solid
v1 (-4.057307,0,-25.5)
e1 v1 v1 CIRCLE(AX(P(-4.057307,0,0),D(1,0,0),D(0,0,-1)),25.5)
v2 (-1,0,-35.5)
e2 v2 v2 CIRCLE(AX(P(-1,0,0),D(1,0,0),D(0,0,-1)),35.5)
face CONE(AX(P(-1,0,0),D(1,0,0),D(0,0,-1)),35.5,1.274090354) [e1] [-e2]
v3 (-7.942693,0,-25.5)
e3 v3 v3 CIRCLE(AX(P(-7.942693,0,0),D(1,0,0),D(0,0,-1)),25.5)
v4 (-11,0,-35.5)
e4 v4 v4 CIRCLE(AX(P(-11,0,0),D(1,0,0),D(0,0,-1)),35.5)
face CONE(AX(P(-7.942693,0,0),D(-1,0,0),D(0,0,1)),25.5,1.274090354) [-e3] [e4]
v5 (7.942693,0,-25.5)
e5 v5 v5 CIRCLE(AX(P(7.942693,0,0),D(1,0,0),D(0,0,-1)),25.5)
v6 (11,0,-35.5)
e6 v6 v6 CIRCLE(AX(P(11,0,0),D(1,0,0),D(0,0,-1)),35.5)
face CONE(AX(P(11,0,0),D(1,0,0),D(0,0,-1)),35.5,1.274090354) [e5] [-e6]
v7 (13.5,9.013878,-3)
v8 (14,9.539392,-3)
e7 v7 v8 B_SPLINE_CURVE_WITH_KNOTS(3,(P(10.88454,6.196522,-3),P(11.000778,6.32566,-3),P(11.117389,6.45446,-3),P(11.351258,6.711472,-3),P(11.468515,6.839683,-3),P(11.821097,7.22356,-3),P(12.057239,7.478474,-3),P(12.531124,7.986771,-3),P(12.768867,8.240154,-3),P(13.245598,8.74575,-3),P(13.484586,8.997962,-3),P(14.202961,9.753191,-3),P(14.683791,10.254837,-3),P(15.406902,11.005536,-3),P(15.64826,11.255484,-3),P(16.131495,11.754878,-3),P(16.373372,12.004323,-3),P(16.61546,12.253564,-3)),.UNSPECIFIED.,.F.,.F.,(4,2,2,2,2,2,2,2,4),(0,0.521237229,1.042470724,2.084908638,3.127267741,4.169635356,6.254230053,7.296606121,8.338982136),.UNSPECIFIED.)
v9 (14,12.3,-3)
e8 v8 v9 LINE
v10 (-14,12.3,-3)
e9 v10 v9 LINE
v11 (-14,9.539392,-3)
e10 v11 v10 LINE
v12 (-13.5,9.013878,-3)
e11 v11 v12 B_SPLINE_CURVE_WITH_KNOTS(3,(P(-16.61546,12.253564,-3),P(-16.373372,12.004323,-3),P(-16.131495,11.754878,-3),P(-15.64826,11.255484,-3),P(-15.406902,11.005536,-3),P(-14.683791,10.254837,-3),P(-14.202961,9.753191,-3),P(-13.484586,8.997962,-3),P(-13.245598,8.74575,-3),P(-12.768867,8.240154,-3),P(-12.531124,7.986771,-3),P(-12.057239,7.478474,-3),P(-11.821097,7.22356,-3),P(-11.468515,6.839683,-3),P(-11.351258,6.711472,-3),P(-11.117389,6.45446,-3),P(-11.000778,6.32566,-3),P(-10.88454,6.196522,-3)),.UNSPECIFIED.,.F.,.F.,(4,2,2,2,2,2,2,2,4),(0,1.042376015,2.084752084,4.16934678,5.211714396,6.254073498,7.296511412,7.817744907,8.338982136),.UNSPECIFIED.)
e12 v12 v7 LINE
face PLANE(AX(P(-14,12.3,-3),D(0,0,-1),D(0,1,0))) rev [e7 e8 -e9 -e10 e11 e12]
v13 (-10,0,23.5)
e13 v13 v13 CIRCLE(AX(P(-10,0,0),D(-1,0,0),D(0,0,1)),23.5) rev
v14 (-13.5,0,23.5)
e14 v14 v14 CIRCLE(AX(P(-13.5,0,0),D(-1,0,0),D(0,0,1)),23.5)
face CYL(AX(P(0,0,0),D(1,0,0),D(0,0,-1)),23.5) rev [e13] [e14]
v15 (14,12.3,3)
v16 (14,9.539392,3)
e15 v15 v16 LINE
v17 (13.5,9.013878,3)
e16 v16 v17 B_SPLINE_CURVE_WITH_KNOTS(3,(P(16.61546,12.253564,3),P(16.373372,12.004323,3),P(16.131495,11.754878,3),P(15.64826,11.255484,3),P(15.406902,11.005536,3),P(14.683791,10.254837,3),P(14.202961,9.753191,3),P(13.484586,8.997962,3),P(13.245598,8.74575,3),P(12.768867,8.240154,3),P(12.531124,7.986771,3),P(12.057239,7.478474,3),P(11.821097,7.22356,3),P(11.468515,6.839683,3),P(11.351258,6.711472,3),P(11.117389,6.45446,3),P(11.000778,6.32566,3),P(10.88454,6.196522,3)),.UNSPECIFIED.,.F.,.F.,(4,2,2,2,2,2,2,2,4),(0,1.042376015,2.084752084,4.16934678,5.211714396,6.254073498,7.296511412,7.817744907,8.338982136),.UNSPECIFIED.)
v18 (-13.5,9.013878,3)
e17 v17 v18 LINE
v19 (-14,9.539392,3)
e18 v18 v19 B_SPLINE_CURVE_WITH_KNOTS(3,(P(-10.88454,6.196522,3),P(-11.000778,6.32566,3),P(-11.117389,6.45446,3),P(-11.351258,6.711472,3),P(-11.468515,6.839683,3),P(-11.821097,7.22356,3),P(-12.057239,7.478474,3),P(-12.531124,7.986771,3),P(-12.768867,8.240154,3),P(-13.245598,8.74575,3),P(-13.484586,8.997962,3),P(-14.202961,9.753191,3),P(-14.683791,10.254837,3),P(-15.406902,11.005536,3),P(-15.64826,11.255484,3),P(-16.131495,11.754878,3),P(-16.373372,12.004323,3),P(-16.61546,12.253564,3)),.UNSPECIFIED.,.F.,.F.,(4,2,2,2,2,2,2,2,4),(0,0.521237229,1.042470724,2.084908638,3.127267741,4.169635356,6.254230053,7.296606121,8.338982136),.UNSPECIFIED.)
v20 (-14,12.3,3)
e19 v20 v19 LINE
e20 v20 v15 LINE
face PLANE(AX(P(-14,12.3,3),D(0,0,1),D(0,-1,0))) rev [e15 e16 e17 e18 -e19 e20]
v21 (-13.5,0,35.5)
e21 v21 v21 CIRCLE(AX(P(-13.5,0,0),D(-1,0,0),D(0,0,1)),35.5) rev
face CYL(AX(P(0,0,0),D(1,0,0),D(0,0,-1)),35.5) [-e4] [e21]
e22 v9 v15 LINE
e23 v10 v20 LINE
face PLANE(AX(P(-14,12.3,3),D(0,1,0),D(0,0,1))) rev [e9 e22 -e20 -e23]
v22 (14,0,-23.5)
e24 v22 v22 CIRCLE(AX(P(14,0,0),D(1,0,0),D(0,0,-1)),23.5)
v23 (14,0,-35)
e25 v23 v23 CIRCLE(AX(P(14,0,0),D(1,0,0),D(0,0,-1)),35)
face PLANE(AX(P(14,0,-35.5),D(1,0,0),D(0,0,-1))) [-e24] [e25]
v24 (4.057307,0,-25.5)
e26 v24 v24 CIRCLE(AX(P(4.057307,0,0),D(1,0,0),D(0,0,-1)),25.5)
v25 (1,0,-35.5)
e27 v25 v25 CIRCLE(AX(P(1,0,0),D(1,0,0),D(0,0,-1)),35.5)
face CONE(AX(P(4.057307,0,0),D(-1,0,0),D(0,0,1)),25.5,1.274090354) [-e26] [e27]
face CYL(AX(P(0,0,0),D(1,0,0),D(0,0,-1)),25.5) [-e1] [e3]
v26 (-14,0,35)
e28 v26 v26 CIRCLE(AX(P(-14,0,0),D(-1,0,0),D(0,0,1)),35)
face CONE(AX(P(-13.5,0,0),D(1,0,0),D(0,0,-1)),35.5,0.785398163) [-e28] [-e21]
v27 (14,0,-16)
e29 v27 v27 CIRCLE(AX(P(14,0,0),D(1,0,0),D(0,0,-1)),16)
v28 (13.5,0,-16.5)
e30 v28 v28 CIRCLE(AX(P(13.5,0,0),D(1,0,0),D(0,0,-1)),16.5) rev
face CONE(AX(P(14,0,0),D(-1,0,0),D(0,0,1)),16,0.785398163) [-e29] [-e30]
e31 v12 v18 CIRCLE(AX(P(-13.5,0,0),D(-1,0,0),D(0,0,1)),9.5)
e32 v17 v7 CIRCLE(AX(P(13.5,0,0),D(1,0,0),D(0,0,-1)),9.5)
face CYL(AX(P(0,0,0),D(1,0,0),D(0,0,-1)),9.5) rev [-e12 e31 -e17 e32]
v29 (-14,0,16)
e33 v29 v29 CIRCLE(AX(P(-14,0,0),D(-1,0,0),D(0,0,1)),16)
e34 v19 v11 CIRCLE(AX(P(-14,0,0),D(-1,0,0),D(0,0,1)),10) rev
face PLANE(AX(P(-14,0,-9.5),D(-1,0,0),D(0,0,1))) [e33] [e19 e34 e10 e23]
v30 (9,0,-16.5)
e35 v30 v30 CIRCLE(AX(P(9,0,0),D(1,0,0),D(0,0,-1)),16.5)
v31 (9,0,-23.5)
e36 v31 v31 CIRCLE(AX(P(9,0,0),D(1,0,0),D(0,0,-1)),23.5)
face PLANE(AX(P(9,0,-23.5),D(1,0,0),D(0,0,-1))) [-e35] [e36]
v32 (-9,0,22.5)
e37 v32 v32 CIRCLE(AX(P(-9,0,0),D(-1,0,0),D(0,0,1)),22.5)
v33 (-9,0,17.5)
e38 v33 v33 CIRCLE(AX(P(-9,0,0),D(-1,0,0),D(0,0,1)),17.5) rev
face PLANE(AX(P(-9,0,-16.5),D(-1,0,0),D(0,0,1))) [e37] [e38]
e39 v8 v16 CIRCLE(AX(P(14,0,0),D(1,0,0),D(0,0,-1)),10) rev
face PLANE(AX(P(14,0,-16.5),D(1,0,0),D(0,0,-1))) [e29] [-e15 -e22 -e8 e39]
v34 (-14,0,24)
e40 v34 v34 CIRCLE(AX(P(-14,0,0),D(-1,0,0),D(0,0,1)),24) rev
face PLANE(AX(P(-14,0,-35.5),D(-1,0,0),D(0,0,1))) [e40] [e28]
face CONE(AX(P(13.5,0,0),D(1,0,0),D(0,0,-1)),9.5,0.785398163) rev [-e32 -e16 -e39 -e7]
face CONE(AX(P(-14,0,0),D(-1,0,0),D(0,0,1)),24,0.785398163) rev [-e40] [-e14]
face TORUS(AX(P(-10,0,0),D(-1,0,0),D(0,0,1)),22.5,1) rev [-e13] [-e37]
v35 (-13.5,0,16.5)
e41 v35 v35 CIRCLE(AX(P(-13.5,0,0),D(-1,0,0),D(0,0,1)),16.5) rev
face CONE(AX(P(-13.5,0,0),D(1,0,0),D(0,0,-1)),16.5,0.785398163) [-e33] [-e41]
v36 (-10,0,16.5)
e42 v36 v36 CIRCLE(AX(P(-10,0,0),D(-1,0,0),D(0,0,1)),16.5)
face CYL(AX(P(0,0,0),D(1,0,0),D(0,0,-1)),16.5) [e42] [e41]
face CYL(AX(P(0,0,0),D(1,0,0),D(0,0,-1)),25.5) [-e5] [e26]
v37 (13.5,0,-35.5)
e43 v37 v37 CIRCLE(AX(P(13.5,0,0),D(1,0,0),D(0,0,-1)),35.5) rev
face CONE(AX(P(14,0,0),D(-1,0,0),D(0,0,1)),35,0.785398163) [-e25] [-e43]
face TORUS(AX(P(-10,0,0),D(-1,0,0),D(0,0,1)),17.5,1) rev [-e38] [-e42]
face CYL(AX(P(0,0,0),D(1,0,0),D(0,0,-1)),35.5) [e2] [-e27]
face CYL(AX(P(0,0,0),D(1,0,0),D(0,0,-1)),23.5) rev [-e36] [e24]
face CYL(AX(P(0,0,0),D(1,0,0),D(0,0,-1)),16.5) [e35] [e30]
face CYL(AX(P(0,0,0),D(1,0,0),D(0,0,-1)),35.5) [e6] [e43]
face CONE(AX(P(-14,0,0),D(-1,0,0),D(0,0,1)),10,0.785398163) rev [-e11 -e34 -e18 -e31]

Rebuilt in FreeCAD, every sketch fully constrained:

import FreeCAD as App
import Part
import Sketcher

V = App.Vector
Q = App.Units.Quantity


def edges_at(feature, points):
    """Names of the edges that pass closest to the given points."""
    edges = feature.Shape.Edges
    near = lambda p: min(range(len(edges)), key=lambda i: edges[i].distToShape(Part.Vertex(*p))[0])
    return sorted({f"Edge{near(p) + 1}" for p in points})


def add_polygon(sketch, points):
    """Adds a closed chain of lines whose ends are joined by coincident constraints."""
    first, n = sketch.GeometryCount, len(points)
    for a, b in zip(points, points[1:] + points[:1]):
        sketch.addGeometry(Part.LineSegment(App.Vector(*a, 0), App.Vector(*b, 0)), False)
    for i in range(n):
        sketch.addConstraint(Sketcher.Constraint("Coincident", first + i, 2, first + (i + 1) % n, 1))

doc = App.newDocument("Part")
body = doc.addObject("PartDesign::Body", "Body")

# Sketch on XZ plane
sketch1 = body.newObject("Sketcher::SketchObject", "Sketch")
sketch1.AttachmentSupport = (doc.getObject("XZ_Plane"), [""])
sketch1.MapMode = "FlatFace"
add_polygon(sketch1, [(-14, -35.5), (-14, -23.5), (-9, -23.5), (-9, -16.5), (-14, -16.5), (-14, -9.5), (14, -9.5), (14, -16.5), (9, -16.5), (9, -23.5), (14, -23.5), (14, -35.5), (11, -35.5), (7.9, -25.5), (4.1, -25.5), (1, -35.5), (-1, -35.5), (-4.1, -25.5), (-7.9, -25.5), (-11, -35.5)])  # lines 0-19
sketch1.addConstraint(Sketcher.Constraint("Vertical", 0))
sketch1.addConstraint(Sketcher.Constraint("Horizontal", 1))
sketch1.addConstraint(Sketcher.Constraint("Vertical", 2))
sketch1.addConstraint(Sketcher.Constraint("Horizontal", 3))
sketch1.addConstraint(Sketcher.Constraint("Vertical", 4))
sketch1.addConstraint(Sketcher.Constraint("Horizontal", 5))
sketch1.addConstraint(Sketcher.Constraint("Vertical", 6))
sketch1.addConstraint(Sketcher.Constraint("Horizontal", 7))
sketch1.addConstraint(Sketcher.Constraint("Vertical", 8))
sketch1.addConstraint(Sketcher.Constraint("Horizontal", 9))
sketch1.addConstraint(Sketcher.Constraint("Vertical", 10))
sketch1.addConstraint(Sketcher.Constraint("Horizontal", 11))
sketch1.addConstraint(Sketcher.Constraint("Horizontal", 13))
sketch1.addConstraint(Sketcher.Constraint("Horizontal", 15))
sketch1.addConstraint(Sketcher.Constraint("Horizontal", 17))
sketch1.addConstraint(Sketcher.Constraint("Horizontal", 19))
sketch1.addConstraint(Sketcher.Constraint("Symmetric", 3, 2, 6, 2, -2))
sketch1.addConstraint(Sketcher.Constraint("Symmetric", 1, 2, 8, 2, -2))
sketch1.addConstraint(Sketcher.Constraint("Symmetric", 13, 2, 16, 2, -2))
sketch1.addConstraint(Sketcher.Constraint("Symmetric", 11, 2, 18, 2, -2))
sketch1.addConstraint(Sketcher.Constraint("Parallel", 12, 16))
sketch1.addConstraint(Sketcher.Constraint("Parallel", 14, 18))
sketch1.addConstraint(Sketcher.Constraint("Horizontal", 11, 2, 14, 2))
sketch1.addConstraint(Sketcher.Constraint("Vertical", 0, 2, 3, 2))
sketch1.addConstraint(Sketcher.Constraint("Vertical", 6, 2, 9, 2))
sketch1.addConstraint(Sketcher.Constraint("Equal", 13, 17))
sketch1.addConstraint(Sketcher.Constraint("Equal", 2, 4))
sketch1.addConstraint(Sketcher.Constraint("DistanceX", 1, 1, 1, 2, 5.0))
sketch1.addConstraint(Sketcher.Constraint("DistanceX", 5, 1, 5, 2, 28.0))
sketch1.addConstraint(Sketcher.Constraint("DistanceX", 11, 2, 11, 1, 3.0))
sketch1.addConstraint(Sketcher.Constraint("DistanceX", 15, 2, 15, 1, 2.0))
sketch1.addConstraint(Sketcher.Constraint("DistanceY", 0, 1, 0, 2, 12.0))
sketch1.addConstraint(Sketcher.Constraint("DistanceY", 2, 1, 2, 2, 7.0))
sketch1.addConstraint(Sketcher.Constraint("Angle", 12, Q("107 deg")))
sketch1.addConstraint(Sketcher.Constraint("DistanceY", 12, 2, 8, 2, 2.0))
sketch1.addConstraint(Sketcher.Constraint("DistanceY", 0, 2, -1, 1, 23.5))
revolution = body.newObject("PartDesign::Revolution", "Revolution")
revolution.Profile = sketch1
revolution.ReferenceAxis = (sketch1, ["H_Axis"])
revolution.Angle = 360
doc.recompute()

chamfer = body.newObject("PartDesign::Chamfer", "Chamfer")
chamfer.Base = (revolution, edges_at(revolution, [(14, 0, 9.5), (14, 0, 16.5), (14, 0, 35.5)]))
chamfer.Size = 0.5
doc.recompute()

chamfer2 = body.newObject("PartDesign::Chamfer", "Chamfer001")
chamfer2.Base = (chamfer, edges_at(chamfer, [
    (-14, 0, 35.5),
    (-14, 0, 23.5),
    (-14, 0, 16.5),
    (-14, 0, 9.5),
]))
chamfer2.Size = 0.5
doc.recompute()

fillet = body.newObject("PartDesign::Fillet", "Fillet")
fillet.Base = (chamfer2, edges_at(chamfer2, [(-9, 0, 23.5), (-9, 0, 16.5)]))
fillet.Radius = 1

# Sketch on YZ plane
sketch2 = body.newObject("Sketcher::SketchObject", "Sketch001")
sketch2.AttachmentSupport = (doc.getObject("YZ_Plane"), [""])
sketch2.MapMode = "FlatFace"
sketch2.AttachmentOffset = App.Placement(V(0, 0, 14), App.Rotation())
add_polygon(sketch2, [(12.3, 3), (7.4, 3), (7.4, -3), (12.3, -3)])  # lines 0-3
sketch2.addConstraint(Sketcher.Constraint("Horizontal", 0))
sketch2.addConstraint(Sketcher.Constraint("Vertical", 1))
sketch2.addConstraint(Sketcher.Constraint("Horizontal", 2))
sketch2.addConstraint(Sketcher.Constraint("Vertical", 3))
sketch2.addConstraint(Sketcher.Constraint("DistanceY", 1, 2, 1, 1, 6.0))
sketch2.addConstraint(Sketcher.Constraint("DistanceY", -1, 1, 0, 2, 3.0))
sketch2.addConstraint(Sketcher.Constraint("DistanceX", -1, 1, 2, 2, 12.3))
sketch2.addConstraint(Sketcher.Constraint("DistanceX", 0, 2, 0, 1, 4.867019))
pocket1 = body.newObject("PartDesign::Pocket", "Pocket")
pocket1.Profile = sketch2
pocket1.Type = "ThroughAll"

doc.recompute()
